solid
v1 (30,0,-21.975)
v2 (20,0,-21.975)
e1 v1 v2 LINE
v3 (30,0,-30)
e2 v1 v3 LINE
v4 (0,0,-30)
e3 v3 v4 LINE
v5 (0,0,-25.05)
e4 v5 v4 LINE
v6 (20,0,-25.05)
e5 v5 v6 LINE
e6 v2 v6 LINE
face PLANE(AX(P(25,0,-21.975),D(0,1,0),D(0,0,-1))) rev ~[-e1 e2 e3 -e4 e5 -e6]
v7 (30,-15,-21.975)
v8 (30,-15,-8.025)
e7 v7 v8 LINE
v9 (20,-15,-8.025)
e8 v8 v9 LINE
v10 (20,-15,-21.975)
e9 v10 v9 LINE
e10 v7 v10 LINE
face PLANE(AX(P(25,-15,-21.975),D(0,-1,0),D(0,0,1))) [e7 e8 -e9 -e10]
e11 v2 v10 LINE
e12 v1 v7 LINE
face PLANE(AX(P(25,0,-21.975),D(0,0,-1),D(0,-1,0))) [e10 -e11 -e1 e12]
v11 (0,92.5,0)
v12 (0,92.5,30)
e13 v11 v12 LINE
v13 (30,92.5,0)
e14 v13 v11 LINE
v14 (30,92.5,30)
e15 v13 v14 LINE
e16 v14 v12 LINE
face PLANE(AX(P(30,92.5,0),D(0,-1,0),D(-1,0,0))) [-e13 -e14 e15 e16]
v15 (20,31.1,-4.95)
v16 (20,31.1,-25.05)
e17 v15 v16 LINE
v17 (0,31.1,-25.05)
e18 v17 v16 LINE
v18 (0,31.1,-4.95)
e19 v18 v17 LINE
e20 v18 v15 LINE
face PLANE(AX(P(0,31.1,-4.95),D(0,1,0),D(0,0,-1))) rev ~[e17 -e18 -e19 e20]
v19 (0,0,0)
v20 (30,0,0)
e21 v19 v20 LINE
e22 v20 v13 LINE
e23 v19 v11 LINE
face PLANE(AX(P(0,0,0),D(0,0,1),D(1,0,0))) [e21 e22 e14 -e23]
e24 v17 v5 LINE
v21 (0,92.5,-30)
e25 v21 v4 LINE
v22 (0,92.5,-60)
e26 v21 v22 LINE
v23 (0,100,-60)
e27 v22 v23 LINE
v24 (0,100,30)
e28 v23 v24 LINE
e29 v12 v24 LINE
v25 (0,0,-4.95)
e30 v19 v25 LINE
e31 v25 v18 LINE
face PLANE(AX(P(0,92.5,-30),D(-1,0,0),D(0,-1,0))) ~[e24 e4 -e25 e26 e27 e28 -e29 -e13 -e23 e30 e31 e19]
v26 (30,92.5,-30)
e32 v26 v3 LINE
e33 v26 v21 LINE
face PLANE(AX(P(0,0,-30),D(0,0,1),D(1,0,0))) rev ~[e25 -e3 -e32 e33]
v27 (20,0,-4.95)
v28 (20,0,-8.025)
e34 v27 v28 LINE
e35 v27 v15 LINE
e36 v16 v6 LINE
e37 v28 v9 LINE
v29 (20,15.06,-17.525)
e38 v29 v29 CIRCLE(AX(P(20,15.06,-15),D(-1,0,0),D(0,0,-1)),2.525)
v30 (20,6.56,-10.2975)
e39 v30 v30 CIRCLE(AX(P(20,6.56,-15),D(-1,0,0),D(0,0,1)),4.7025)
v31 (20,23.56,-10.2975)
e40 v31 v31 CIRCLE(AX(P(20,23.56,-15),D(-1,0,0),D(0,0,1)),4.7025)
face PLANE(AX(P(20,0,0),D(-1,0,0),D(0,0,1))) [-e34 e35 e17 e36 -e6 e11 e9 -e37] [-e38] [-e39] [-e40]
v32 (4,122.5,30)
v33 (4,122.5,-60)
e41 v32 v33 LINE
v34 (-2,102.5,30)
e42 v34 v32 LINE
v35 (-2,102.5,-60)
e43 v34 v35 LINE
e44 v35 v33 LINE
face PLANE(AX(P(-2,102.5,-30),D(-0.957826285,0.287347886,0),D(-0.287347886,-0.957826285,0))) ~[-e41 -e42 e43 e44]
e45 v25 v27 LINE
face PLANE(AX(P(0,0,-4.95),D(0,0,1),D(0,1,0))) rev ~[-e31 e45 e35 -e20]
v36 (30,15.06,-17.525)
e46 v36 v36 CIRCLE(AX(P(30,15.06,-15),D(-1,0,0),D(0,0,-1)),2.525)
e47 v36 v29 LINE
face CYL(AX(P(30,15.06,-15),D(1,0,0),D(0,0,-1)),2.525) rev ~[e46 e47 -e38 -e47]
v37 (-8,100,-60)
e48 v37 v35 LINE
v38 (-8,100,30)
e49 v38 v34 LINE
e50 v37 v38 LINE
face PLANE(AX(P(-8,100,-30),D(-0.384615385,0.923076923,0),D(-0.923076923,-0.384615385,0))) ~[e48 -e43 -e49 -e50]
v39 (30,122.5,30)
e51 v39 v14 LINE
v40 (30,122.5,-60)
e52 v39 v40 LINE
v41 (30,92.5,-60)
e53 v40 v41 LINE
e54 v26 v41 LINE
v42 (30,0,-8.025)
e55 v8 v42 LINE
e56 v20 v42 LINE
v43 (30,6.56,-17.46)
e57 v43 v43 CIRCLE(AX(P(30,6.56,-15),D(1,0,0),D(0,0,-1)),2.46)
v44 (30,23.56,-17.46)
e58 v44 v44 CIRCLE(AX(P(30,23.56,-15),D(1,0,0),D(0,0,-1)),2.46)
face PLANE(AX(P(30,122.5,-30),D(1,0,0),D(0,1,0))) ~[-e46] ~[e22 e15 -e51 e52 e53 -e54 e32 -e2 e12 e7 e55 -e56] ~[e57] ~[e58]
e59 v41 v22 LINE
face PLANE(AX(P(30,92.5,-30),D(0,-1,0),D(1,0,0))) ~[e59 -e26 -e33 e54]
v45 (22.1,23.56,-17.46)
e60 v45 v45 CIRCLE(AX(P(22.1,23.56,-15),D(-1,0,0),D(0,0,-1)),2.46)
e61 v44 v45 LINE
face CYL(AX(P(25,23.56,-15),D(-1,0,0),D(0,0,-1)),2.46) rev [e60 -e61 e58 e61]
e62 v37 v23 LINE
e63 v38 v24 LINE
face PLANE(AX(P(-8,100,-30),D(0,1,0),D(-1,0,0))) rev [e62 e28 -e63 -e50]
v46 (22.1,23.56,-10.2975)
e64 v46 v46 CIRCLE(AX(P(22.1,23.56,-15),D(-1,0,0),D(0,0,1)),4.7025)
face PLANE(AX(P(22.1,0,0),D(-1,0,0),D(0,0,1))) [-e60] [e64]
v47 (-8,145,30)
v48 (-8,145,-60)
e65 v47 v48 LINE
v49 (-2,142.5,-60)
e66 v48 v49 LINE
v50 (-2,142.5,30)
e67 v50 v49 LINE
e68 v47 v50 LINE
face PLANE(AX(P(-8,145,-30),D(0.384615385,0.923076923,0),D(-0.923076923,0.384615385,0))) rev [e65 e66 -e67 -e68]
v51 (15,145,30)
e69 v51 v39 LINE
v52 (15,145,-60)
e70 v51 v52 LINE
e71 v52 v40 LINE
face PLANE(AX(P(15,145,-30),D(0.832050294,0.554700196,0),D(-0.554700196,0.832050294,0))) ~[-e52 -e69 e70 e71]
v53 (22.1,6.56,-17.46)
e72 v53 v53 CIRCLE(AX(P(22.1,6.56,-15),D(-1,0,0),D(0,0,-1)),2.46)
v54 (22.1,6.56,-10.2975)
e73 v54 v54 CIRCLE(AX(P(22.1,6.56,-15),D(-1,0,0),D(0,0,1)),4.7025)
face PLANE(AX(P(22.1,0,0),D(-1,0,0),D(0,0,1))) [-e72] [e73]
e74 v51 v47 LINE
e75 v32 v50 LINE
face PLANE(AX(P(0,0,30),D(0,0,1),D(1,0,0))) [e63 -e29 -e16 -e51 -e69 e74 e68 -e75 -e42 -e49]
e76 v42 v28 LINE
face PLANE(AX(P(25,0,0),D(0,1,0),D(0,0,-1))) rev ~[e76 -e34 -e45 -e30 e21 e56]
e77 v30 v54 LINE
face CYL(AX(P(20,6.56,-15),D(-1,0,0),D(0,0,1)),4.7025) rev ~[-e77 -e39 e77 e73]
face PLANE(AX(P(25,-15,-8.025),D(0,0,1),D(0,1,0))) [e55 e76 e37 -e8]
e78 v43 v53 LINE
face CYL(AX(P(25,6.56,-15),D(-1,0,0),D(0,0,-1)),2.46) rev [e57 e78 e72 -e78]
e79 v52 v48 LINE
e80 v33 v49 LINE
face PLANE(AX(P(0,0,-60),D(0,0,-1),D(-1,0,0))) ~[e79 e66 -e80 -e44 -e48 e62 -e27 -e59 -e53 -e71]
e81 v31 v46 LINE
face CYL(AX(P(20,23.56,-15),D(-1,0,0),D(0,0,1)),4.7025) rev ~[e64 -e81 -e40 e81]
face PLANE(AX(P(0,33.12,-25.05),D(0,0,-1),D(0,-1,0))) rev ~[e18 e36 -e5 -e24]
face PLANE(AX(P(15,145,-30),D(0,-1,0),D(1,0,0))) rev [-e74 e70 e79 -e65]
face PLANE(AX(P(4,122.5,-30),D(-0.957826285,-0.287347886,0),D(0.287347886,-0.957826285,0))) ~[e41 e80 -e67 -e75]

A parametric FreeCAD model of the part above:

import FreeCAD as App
import Part
import Sketcher
from FreeCAD import Vector
Q = App.Units.Quantity

doc = App.newDocument("Part")
body = doc.addObject("PartDesign::Body", "Body")

# Sketch on XY plane
sketch1 = body.newObject("Sketcher::SketchObject", "Sketch")
sketch1.AttachmentSupport = (doc.getObject("XY_Plane"), [""])
sketch1.MapMode = "FlatFace"
sketch1.addGeometry([
    Part.LineSegment(Vector(0, 40, 0), Vector(0, 0, 0)),
    Part.LineSegment(Vector(0, 0, 0), Vector(25, 0, 0)),
    Part.LineSegment(Vector(25, 0, 0), Vector(25, 40, 0)),
    Part.LineSegment(Vector(25, 40, 0), Vector(0, 40, 0)),
], False)
sketch1.addConstraint([
    Sketcher.Constraint("Coincident", 0, 2, 1, 1),
    Sketcher.Constraint("Coincident", 1, 2, 2, 1),
    Sketcher.Constraint("Coincident", 2, 2, 3, 1),
    Sketcher.Constraint("Coincident", 3, 2, 0, 1),
    Sketcher.Constraint("Vertical", 0),
    Sketcher.Constraint("Horizontal", 1),
    Sketcher.Constraint("Vertical", 2),
    Sketcher.Constraint("Horizontal", 3),
    Sketcher.Constraint("Coincident", 0, 2, -1, 1),
    Sketcher.Constraint("DistanceX", 1, 1, 1, 2, Q("25 mm")),
    Sketcher.Constraint("DistanceY", 0, 2, 0, 1, Q("40 mm")),
])
pad1 = body.newObject("PartDesign::Pad", "Pad")
pad1.Profile = sketch1
pad1.Length = 30
pad1.Reversed = True

# Sketch on YZ plane
sketch2 = body.newObject("Sketcher::SketchObject", "Sketch001")
sketch2.AttachmentSupport = (doc.getObject("YZ_Plane"), [""])
sketch2.MapMode = "FlatFace"
sketch2.AttachmentOffset = App.Placement(Vector(0, 0, 25), App.Rotation())
sketch2.addGeometry(Part.Circle(Vector(6.6, -15, 0), Vector(0, 0, 1), 2.5), False)
sketch2.addConstraint([
    Sketcher.Constraint("Diameter", 0, Q("4.92 mm")),
    Sketcher.Constraint("DistanceY", 0, 3, -1, 1, Q("15 mm")),
    Sketcher.Constraint("DistanceX", -1, 1, 0, 3, Q("6.56 mm")),
])
pocket1 = body.newObject("PartDesign::Pocket", "Pocket")
pocket1.Profile = sketch2
pocket1.Length = 30

# Sketch on YZ plane
sketch3 = body.newObject("Sketcher::SketchObject", "Sketch002")
sketch3.AttachmentSupport = (doc.getObject("YZ_Plane"), [""])
sketch3.MapMode = "FlatFace"
sketch3.addGeometry([
    Part.LineSegment(Vector(0, -25, 0), Vector(0, -5, 0)),
    Part.LineSegment(Vector(0, -5, 0), Vector(33, -5, 0)),
    Part.LineSegment(Vector(33, -5, 0), Vector(33, -25, 0)),
    Part.LineSegment(Vector(33, -25, 0), Vector(0, -25, 0)),
], False)
sketch3.addConstraint([
    Sketcher.Constraint("Coincident", 0, 2, 1, 1),
    Sketcher.Constraint("Coincident", 1, 2, 2, 1),
    Sketcher.Constraint("Coincident", 2, 2, 3, 1),
    Sketcher.Constraint("Coincident", 3, 2, 0, 1),
    Sketcher.Constraint("Vertical", 0),
    Sketcher.Constraint("Horizontal", 1),
    Sketcher.Constraint("Vertical", 2),
    Sketcher.Constraint("Horizontal", 3),
    Sketcher.Constraint("PointOnObject", 0, 2, -2),
    Sketcher.Constraint("DistanceY", 0, 1, 0, 2, Q("20.1 mm")),
    Sketcher.Constraint("DistanceX", 1, 1, 1, 2, Q("33.12 mm")),
    Sketcher.Constraint("DistanceY", 0, 2, -1, 1, Q("4.95 mm")),
])
pocket2 = body.newObject("PartDesign::Pocket", "Pocket001")
pocket2.Profile = sketch3
pocket2.Length = 20
pocket2.Reversed = True

# Sketch on XZ plane
sketch4 = body.newObject("Sketcher::SketchObject", "Sketch003")
sketch4.AttachmentSupport = (doc.getObject("XZ_Plane"), [""])
sketch4.MapMode = "FlatFace"
sketch4.addGeometry([
    Part.LineSegment(Vector(25, -8, 0), Vector(20, -8, 0)),
    Part.LineSegment(Vector(20, -8, 0), Vector(20, -22, 0)),
    Part.LineSegment(Vector(20, -22, 0), Vector(25, -22, 0)),
    Part.LineSegment(Vector(25, -22, 0), Vector(25, -8, 0)),
], False)
sketch4.addConstraint([
    Sketcher.Constraint("Coincident", 0, 2, 1, 1),
    Sketcher.Constraint("Coincident", 1, 2, 2, 1),
    Sketcher.Constraint("Coincident", 2, 2, 3, 1),
    Sketcher.Constraint("Coincident", 3, 2, 0, 1),
    Sketcher.Constraint("Horizontal", 0),
    Sketcher.Constraint("Vertical", 1),
    Sketcher.Constraint("Horizontal", 2),
    Sketcher.Constraint("Vertical", 3),
    Sketcher.Constraint("DistanceY", 1, 2, 1, 1, Q("13.95 mm")),
    Sketcher.Constraint("DistanceX", 0, 2, 0, 1, Q("5 mm")),
    Sketcher.Constraint("DistanceX", -1, 1, 0, 2, Q("20 mm")),
    Sketcher.Constraint("DistanceY", 0, 2, -1, 1, Q("8.025 mm")),
])
pad2 = body.newObject("PartDesign::Pad", "Pad001")
pad2.Profile = sketch4
pad2.Length = 15

# Sketch on YZ plane
sketch5 = body.newObject("Sketcher::SketchObject", "Sketch004")
sketch5.AttachmentSupport = (doc.getObject("YZ_Plane"), [""])
sketch5.MapMode = "FlatFace"
sketch5.AttachmentOffset = App.Placement(Vector(0, 0, 20), App.Rotation())
sketch5.addGeometry([
    Part.Circle(Vector(6.6, -15, 0), Vector(0, 0, 1), 4.7),
    Part.Circle(Vector(6.6, -15, 0), Vector(0, 0, 1), 2.5),
], False)
sketch5.addConstraint([
    Sketcher.Constraint("Coincident", 1, 3, 0, 3),
    Sketcher.Constraint("Diameter", 0, Q("9.405 mm")),
    Sketcher.Constraint("Diameter", 1, Q("4.92 mm")),
    Sketcher.Constraint("DistanceY", 0, 3, -1, 1, Q("15 mm")),
    Sketcher.Constraint("DistanceX", -1, 1, 0, 3, Q("6.56 mm")),
])
pocket3 = body.newObject("PartDesign::Pocket", "Pocket002")
pocket3.Profile = sketch5
pocket3.Length = 2.1
pocket3.Reversed = True

# Sketch on YZ plane
sketch6 = body.newObject("Sketcher::SketchObject", "Sketch005")
sketch6.AttachmentSupport = (doc.getObject("YZ_Plane"), [""])
sketch6.MapMode = "FlatFace"
sketch6.AttachmentOffset = App.Placement(Vector(0, 0, 25), App.Rotation())
sketch6.addGeometry(Part.Circle(Vector(23.6, -15, 0), Vector(0, 0, 1), 2.5), False)
sketch6.addConstraint([
    Sketcher.Constraint("Diameter", 0, Q("4.92 mm")),
    Sketcher.Constraint("DistanceY", 0, 3, -1, 1, Q("15 mm")),
    Sketcher.Constraint("DistanceX", -1, 1, 0, 3, Q("23.56 mm")),
])
pocket4 = body.newObject("PartDesign::Pocket", "Pocket003")
pocket4.Profile = sketch6
pocket4.Length = 10

# Sketch on YZ plane
sketch7 = body.newObject("Sketcher::SketchObject", "Sketch006")
sketch7.AttachmentSupport = (doc.getObject("YZ_Plane"), [""])
sketch7.MapMode = "FlatFace"
sketch7.AttachmentOffset = App.Placement(Vector(0, 0, 20), App.Rotation())
sketch7.addGeometry([
    Part.Circle(Vector(23.6, -15, 0), Vector(0, 0, 1), 4.7),
    Part.Circle(Vector(23.6, -15, 0), Vector(0, 0, 1), 2.5),
], False)
sketch7.addConstraint([
    Sketcher.Constraint("Coincident", 1, 3, 0, 3),
    Sketcher.Constraint("Diameter", 0, Q("9.405 mm")),
    Sketcher.Constraint("Diameter", 1, Q("4.92 mm")),
    Sketcher.Constraint("DistanceY", 0, 3, -1, 1, Q("15 mm")),
    Sketcher.Constraint("DistanceX", -1, 1, 0, 3, Q("23.56 mm")),
])
pocket5 = body.newObject("PartDesign::Pocket", "Pocket004")
pocket5.Profile = sketch7
pocket5.Length = 2.1
pocket5.Reversed = True

# Sketch on YZ plane
sketch8 = body.newObject("Sketcher::SketchObject", "Sketch007")
sketch8.AttachmentSupport = (doc.getObject("YZ_Plane"), [""])
sketch8.MapMode = "FlatFace"
sketch8.AttachmentOffset = App.Placement(Vector(0, 0, 25), App.Rotation())
sketch8.addGeometry([
    Part.LineSegment(Vector(0, -30, 0), Vector(40, -30, 0)),  # 0
    Part.LineSegment(Vector(40, -30, 0), Vector(40, 0, 0)),  # 1
    Part.LineSegment(Vector(40, 0, 0), Vector(0, 0, 0)),  # 2
    Part.LineSegment(Vector(0, 0, 0), Vector(0, -8, 0)),  # 3
    Part.LineSegment(Vector(0, -8, 0), Vector(-15, -8, 0)),  # 4
    Part.LineSegment(Vector(-15, -8, 0), Vector(-15, -22, 0)),  # 5
    Part.LineSegment(Vector(-15, -22, 0), Vector(0, -22, 0)),  # 6
    Part.LineSegment(Vector(0, -22, 0), Vector(0, -30, 0)),  # 7
    Part.Circle(Vector(6.6, -15, 0), Vector(0, 0, 1), 2.5),  # 8
    Part.Circle(Vector(23.6, -15, 0), Vector(0, 0, 1), 2.5),  # 9
], False)
sketch8.addConstraint([
    Sketcher.Constraint("Coincident", 0, 2, 1, 1),
    Sketcher.Constraint("Coincident", 1, 2, 2, 1),
    Sketcher.Constraint("Coincident", 2, 2, 3, 1),
    Sketcher.Constraint("Coincident", 3, 2, 4, 1),
    Sketcher.Constraint("Coincident", 4, 2, 5, 1),
    Sketcher.Constraint("Coincident", 5, 2, 6, 1),
    Sketcher.Constraint("Coincident", 6, 2, 7, 1),
    Sketcher.Constraint("Coincident", 7, 2, 0, 1),
    Sketcher.Constraint("Horizontal", 0),
    Sketcher.Constraint("Vertical", 1),
    Sketcher.Constraint("Horizontal", 2),
    Sketcher.Constraint("Vertical", 3),
    Sketcher.Constraint("Horizontal", 4),
    Sketcher.Constraint("Vertical", 5),
    Sketcher.Constraint("Horizontal", 6),
    Sketcher.Constraint("Vertical", 7),
    Sketcher.Constraint("Coincident", 2, 2, -1, 1),
    Sketcher.Constraint("Equal", 8, 9),
    Sketcher.Constraint("PointOnObject", 6, 2, -2),
    Sketcher.Constraint("Horizontal", 8, 3, 9, 3),
    Sketcher.Constraint("Equal", 3, 7),
    Sketcher.Constraint("Diameter", 8, Q("4.92 mm")),
    Sketcher.Constraint("DistanceX", 0, 1, 0, 2, Q("40 mm")),
    Sketcher.Constraint("DistanceX", 4, 2, 4, 1, Q("15 mm")),
    Sketcher.Constraint("DistanceY", 1, 1, 1, 2, Q("30 mm")),
    Sketcher.Constraint("DistanceY", 8, 3, -1, 1, Q("15 mm")),
    Sketcher.Constraint("DistanceX", 8, 3, 9, 3, Q("17 mm")),
    Sketcher.Constraint("DistanceY", 5, 2, 5, 1, Q("13.95 mm")),
    Sketcher.Constraint("DistanceX", -1, 1, 8, 3, Q("6.56 mm")),
])
pad3 = body.newObject("PartDesign::Pad", "Pad002")
pad3.Profile = sketch8
pad3.Length = 5

# Sketch on XZ plane
sketch9 = body.newObject("Sketcher::SketchObject", "Sketch008")
sketch9.AttachmentSupport = (doc.getObject("XZ_Plane"), [""])
sketch9.MapMode = "FlatFace"
sketch9.AttachmentOffset = App.Placement(Vector(0, 0, -40), App.Rotation())
sketch9.addGeometry([
    Part.LineSegment(Vector(30, -30, 0), Vector(0, -30, 0)),
    Part.LineSegment(Vector(0, -30, 0), Vector(0, 0, 0)),
    Part.LineSegment(Vector(0, 0, 0), Vector(30, 0, 0)),
    Part.LineSegment(Vector(30, 0, 0), Vector(30, -30, 0)),
], False)
sketch9.addConstraint([
    Sketcher.Constraint("Coincident", 0, 2, 1, 1),
    Sketcher.Constraint("Coincident", 1, 2, 2, 1),
    Sketcher.Constraint("Coincident", 2, 2, 3, 1),
    Sketcher.Constraint("Coincident", 3, 2, 0, 1),
    Sketcher.Constraint("Horizontal", 0),
    Sketcher.Constraint("Vertical", 1),
    Sketcher.Constraint("Horizontal", 2),
    Sketcher.Constraint("Vertical", 3),
    Sketcher.Constraint("Coincident", 1, 2, -1, 1),
    Sketcher.Constraint("Equal", 2, 1),
    Sketcher.Constraint("DistanceX", 0, 2, 0, 1, Q("30 mm")),
])
pad4 = body.newObject("PartDesign::Pad", "Pad003")
pad4.Profile = sketch9
pad4.Length = 30
pad4.Reversed = True

# Sketch on YZ plane
sketch10 = body.newObject("Sketcher::SketchObject", "Sketch009")
sketch10.AttachmentSupport = (doc.getObject("YZ_Plane"), [""])
sketch10.MapMode = "FlatFace"
sketch10.AttachmentOffset = App.Placement(Vector(0, 0, 30), App.Rotation())
sketch10.addGeometry(Part.Circle(Vector(15.1, -15, 0), Vector(0, 0, 1), 2.5), False)
sketch10.addConstraint([
    Sketcher.Constraint("Diameter", 0, Q("5.05 mm")),
    Sketcher.Constraint("DistanceY", 0, 3, -1, 1, Q("15 mm")),
    Sketcher.Constraint("DistanceX", -1, 1, 0, 3, Q("15.06 mm")),
])
pocket6 = body.newObject("PartDesign::Pocket", "Pocket005")
pocket6.Profile = sketch10
pocket6.Length = 30

# Sketch on XY plane
sketch11 = body.newObject("Sketcher::SketchObject", "Sketch010")
sketch11.AttachmentSupport = (doc.getObject("XY_Plane"), [""])
sketch11.MapMode = "FlatFace"
sketch11.addGeometry([
    Part.LineSegment(Vector(0, 70, 0), Vector(30, 70, 0)),  # 0
    Part.LineSegment(Vector(30, 70, 0), Vector(30, 122, 0)),  # 1
    Part.LineSegment(Vector(30, 122, 0), Vector(15, 145, 0)),  # 2
    Part.LineSegment(Vector(15, 145, 0), Vector(-8, 145, 0)),  # 3
    Part.LineSegment(Vector(-8, 145, 0), Vector(-2, 142, 0)),  # 4
    Part.LineSegment(Vector(-2, 142, 0), Vector(4, 122, 0)),  # 5
    Part.LineSegment(Vector(4, 122, 0), Vector(-2, 102, 0)),  # 6
    Part.LineSegment(Vector(-2, 102, 0), Vector(-8, 100, 0)),  # 7
    Part.LineSegment(Vector(-8, 100, 0), Vector(0, 100, 0)),  # 8
    Part.LineSegment(Vector(0, 100, 0), Vector(0, 70, 0)),  # 9
], False)
sketch11.addConstraint([
    Sketcher.Constraint("Coincident", 0, 2, 1, 1),
    Sketcher.Constraint("Coincident", 1, 2, 2, 1),
    Sketcher.Constraint("Coincident", 2, 2, 3, 1),
    Sketcher.Constraint("Coincident", 3, 2, 4, 1),
    Sketcher.Constraint("Coincident", 4, 2, 5, 1),
    Sketcher.Constraint("Coincident", 5, 2, 6, 1),
    Sketcher.Constraint("Coincident", 6, 2, 7, 1),
    Sketcher.Constraint("Coincident", 7, 2, 8, 1),
    Sketcher.Constraint("Coincident", 8, 2, 9, 1),
    Sketcher.Constraint("Coincident", 9, 2, 0, 1),
    Sketcher.Constraint("Horizontal", 0),
    Sketcher.Constraint("Vertical", 1),
    Sketcher.Constraint("Horizontal", 3),
    Sketcher.Constraint("Horizontal", 8),
    Sketcher.Constraint("Vertical", 9),
    Sketcher.Constraint("PointOnObject", 8, 2, -2),
    Sketcher.Constraint("Horizontal", 1, 2, 5, 2),
    Sketcher.Constraint("Vertical", 4, 2, 6, 2),
    Sketcher.Constraint("Vertical", 3, 2, 7, 2),
    Sketcher.Constraint("Equal", 0, 9),
    Sketcher.Constraint("Equal", 5, 6),
    Sketcher.Constraint("Equal", 4, 7),
    Sketcher.Constraint("DistanceX", 0, 1, 0, 2, Q("30 mm")),
    Sketcher.Constraint("DistanceY", 7, 2, 3, 2, Q("45 mm")),
    Sketcher.Constraint("DistanceX", 3, 2, 3, 1, Q("23 mm")),
    Sketcher.Constraint("DistanceX", 8, 1, 8, 2, Q("8 mm")),
    Sketcher.Constraint("DistanceY", -1, 1, 0, 2, Q("70 mm")),
    Sketcher.Constraint("DistanceX", 4, 2, -1, 1, Q("2 mm")),
    Sketcher.Constraint("DistanceX", -1, 1, 5, 2, Q("4 mm")),
    Sketcher.Constraint("Angle", 5, Q("-73.3008 deg")),
])
pad5 = body.newObject("PartDesign::Pad", "Pad004")
pad5.Profile = sketch11
pad5.Length = 30
pad5.Reversed = True

# Sketch on YZ plane
sketch12 = body.newObject("Sketcher::SketchObject", "Sketch011")
sketch12.AttachmentSupport = (doc.getObject("YZ_Plane"), [""])
sketch12.MapMode = "FlatFace"
sketch12.addGeometry([
    Part.LineSegment(Vector(33.1, -5, 0), Vector(33.1, -25.1, 0)),
    Part.LineSegment(Vector(33.1, -25.1, 0), Vector(31.1, -25.1, 0)),
    Part.LineSegment(Vector(31.1, -25.1, 0), Vector(31.1, -5, 0)),
    Part.LineSegment(Vector(31.1, -5, 0), Vector(33.1, -5, 0)),
], False)
sketch12.addConstraint([
    Sketcher.Constraint("Coincident", 0, 2, 1, 1),
    Sketcher.Constraint("Coincident", 1, 2, 2, 1),
    Sketcher.Constraint("Coincident", 2, 2, 3, 1),
    Sketcher.Constraint("Coincident", 3, 2, 0, 1),
    Sketcher.Constraint("Vertical", 0),
    Sketcher.Constraint("Horizontal", 1),
    Sketcher.Constraint("Vertical", 2),
    Sketcher.Constraint("Horizontal", 3),
    Sketcher.Constraint("DistanceX", 1, 2, 1, 1, Q("2.02 mm")),
    Sketcher.Constraint("DistanceY", 0, 2, 0, 1, Q("20.1 mm")),
    Sketcher.Constraint("DistanceX", -1, 1, 1, 2, Q("31.1 mm")),
    Sketcher.Constraint("DistanceY", 0, 2, -1, 1, Q("25.05 mm")),
])
pad6 = body.newObject("PartDesign::Pad", "Pad005")
pad6.Profile = sketch12
pad6.Length = 20

# Sketch on XY plane
sketch13 = body.newObject("Sketcher::SketchObject", "Sketch012")
sketch13.AttachmentSupport = (doc.getObject("XY_Plane"), [""])
sketch13.MapMode = "FlatFace"
sketch13.addGeometry([
    Part.LineSegment(Vector(-2, 102, 0), Vector(-8, 100, 0)),  # 0
    Part.LineSegment(Vector(-8, 100, 0), Vector(0, 100, 0)),  # 1
    Part.LineSegment(Vector(0, 100, 0), Vector(0, 92, 0)),  # 2
    Part.LineSegment(Vector(0, 92, 0), Vector(30, 92, 0)),  # 3
    Part.LineSegment(Vector(30, 92, 0), Vector(30, 122, 0)),  # 4
    Part.LineSegment(Vector(30, 122, 0), Vector(15, 145, 0)),  # 5
    Part.LineSegment(Vector(15, 145, 0), Vector(-8, 145, 0)),  # 6
    Part.LineSegment(Vector(-8, 145, 0), Vector(-2, 142, 0)),  # 7
    Part.LineSegment(Vector(-2, 142, 0), Vector(4, 122, 0)),  # 8
    Part.LineSegment(Vector(4, 122, 0), Vector(-2, 102, 0)),  # 9
], False)
sketch13.addConstraint([
    Sketcher.Constraint("Coincident", 0, 2, 1, 1),
    Sketcher.Constraint("Coincident", 1, 2, 2, 1),
    Sketcher.Constraint("Coincident", 2, 2, 3, 1),
    Sketcher.Constraint("Coincident", 3, 2, 4, 1),
    Sketcher.Constraint("Coincident", 4, 2, 5, 1),
    Sketcher.Constraint("Coincident", 5, 2, 6, 1),
    Sketcher.Constraint("Coincident", 6, 2, 7, 1),
    Sketcher.Constraint("Coincident", 7, 2, 8, 1),
    Sketcher.Constraint("Coincident", 8, 2, 9, 1),
    Sketcher.Constraint("Coincident", 9, 2, 0, 1),
    Sketcher.Constraint("Horizontal", 1),
    Sketcher.Constraint("Vertical", 2),
    Sketcher.Constraint("Horizontal", 3),
    Sketcher.Constraint("Vertical", 4),
    Sketcher.Constraint("Horizontal", 6),
    Sketcher.Constraint("PointOnObject", 1, 2, -2),
    Sketcher.Constraint("Horizontal", 4, 2, 8, 2),
    Sketcher.Constraint("Vertical", 0, 2, 6, 2),
    Sketcher.Constraint("Vertical", 7, 2, 9, 2),
    Sketcher.Constraint("Equal", 3, 4),
    Sketcher.Constraint("Equal", 0, 7),
    Sketcher.Constraint("Equal", 8, 9),
    Sketcher.Constraint("DistanceX", 3, 1, 3, 2, Q("30 mm")),
    Sketcher.Constraint("DistanceX", 1, 1, 1, 2, Q("8 mm")),
    Sketcher.Constraint("DistanceX", 6, 2, 6, 1, Q("23 mm")),
    Sketcher.Constraint("DistanceY", 2, 2, 2, 1, Q("7.5 mm")),
    Sketcher.Constraint("DistanceY", -1, 1, 0, 2, Q("100 mm")),
    Sketcher.Constraint("DistanceX", 7, 2, -1, 1, Q("2 mm")),
    Sketcher.Constraint("DistanceX", -1, 1, 8, 2, Q("4 mm")),
    Sketcher.Constraint("Angle", 8, Q("-73.3008 deg")),
])
pad7 = body.newObject("PartDesign::Pad", "Pad006")
pad7.Profile = sketch13
pad7.Length = 30
doc.recompute()

datumplane = body.newObject("PartDesign::Plane", "DatumPlane")
datumplane.AttachmentSupport = (doc.getObject("XY_Plane"), [""])
datumplane.MapMode = "FlatFace"
datumplane.AttachmentOffset = App.Placement(Vector(0, 0, -15), App.Rotation())
mirrored = body.newObject("PartDesign::Mirrored", "Mirrored")
mirrored.Originals = [pad7]
mirrored.MirrorPlane = (datumplane, [""])
body.Tip = mirrored

doc.recompute()
